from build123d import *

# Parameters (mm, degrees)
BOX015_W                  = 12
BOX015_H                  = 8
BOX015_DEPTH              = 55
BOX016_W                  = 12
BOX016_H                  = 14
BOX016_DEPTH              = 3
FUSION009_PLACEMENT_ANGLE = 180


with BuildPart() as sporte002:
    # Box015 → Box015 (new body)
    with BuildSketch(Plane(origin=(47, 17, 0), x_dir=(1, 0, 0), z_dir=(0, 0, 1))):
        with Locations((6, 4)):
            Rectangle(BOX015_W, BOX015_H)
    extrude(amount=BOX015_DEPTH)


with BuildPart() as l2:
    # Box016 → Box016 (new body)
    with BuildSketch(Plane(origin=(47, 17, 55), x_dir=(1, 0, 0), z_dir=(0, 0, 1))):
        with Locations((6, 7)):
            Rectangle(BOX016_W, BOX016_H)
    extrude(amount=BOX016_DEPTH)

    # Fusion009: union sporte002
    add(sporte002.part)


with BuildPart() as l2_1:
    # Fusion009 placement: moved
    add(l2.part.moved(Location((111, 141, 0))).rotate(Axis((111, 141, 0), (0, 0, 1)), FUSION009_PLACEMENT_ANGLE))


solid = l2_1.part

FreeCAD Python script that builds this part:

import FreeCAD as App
import Part
import Sketcher
from FreeCAD import Vector


def add_polygon(sketch, points):
    """Adds a closed chain of lines whose ends are joined by coincident constraints."""
    first, n = sketch.GeometryCount, len(points)
    for a, b in zip(points, points[1:] + points[:1]):
        sketch.addGeometry(Part.LineSegment(App.Vector(*a, 0), App.Vector(*b, 0)), False)
    for i in range(n):
        sketch.addConstraint(Sketcher.Constraint("Coincident", first + i, 2, first + (i + 1) % n, 1))

doc = App.newDocument("Part")
body = doc.addObject("PartDesign::Body", "Body")

sketch1 = body.newObject("Sketcher::SketchObject", "Sketch")
sketch1.AttachmentSupport = (doc.getObject("XY_Plane"), [""])
sketch1.MapMode = "FlatFace"
add_polygon(sketch1, [(47, 25), (47, 17), (59, 17), (59, 25)])
sketch1.addConstraint([
    Sketcher.Constraint("Vertical", 0),
    Sketcher.Constraint("Horizontal", 1),
    Sketcher.Constraint("Vertical", 2),
    Sketcher.Constraint("Horizontal", 3),
    Sketcher.Constraint("DistanceX", 1, 1, 1, 2, 12.0),
    Sketcher.Constraint("DistanceY", 0, 2, 0, 1, 8.0),
    Sketcher.Constraint("DistanceX", -1, 1, 0, 2, 47.0),
    Sketcher.Constraint("DistanceY", -1, 1, 0, 2, 17.0),
])
pad1 = body.newObject("PartDesign::Pad", "Pad")
pad1.Profile = sketch1
pad1.Length = 55
body2 = doc.addObject("PartDesign::Body", "Body001")

sketch2 = body2.newObject("Sketcher::SketchObject", "Sketch001")
sketch2.AttachmentSupport = (doc.getObject("XY_Plane001"), [""])
sketch2.MapMode = "FlatFace"
sketch2.AttachmentOffset = App.Placement(Vector(0, 0, 55), App.Rotation())
add_polygon(sketch2, [(47, 31), (47, 17), (59, 17), (59, 31)])
sketch2.addConstraint([
    Sketcher.Constraint("Vertical", 0),
    Sketcher.Constraint("Horizontal", 1),
    Sketcher.Constraint("Vertical", 2),
    Sketcher.Constraint("Horizontal", 3),
    Sketcher.Constraint("DistanceX", 1, 1, 1, 2, 12.0),
    Sketcher.Constraint("DistanceY", 0, 2, 0, 1, 14.0),
    Sketcher.Constraint("DistanceX", -1, 1, 0, 2, 47.0),
    Sketcher.Constraint("DistanceY", -1, 1, 0, 2, 17.0),
])
pad2 = body2.newObject("PartDesign::Pad", "Pad001")
pad2.Profile = sketch2
pad2.Length = 3
doc.recompute()

boolean = body2.newObject("PartDesign::Boolean", "Boolean")
boolean.Type = "Fuse"
boolean.addObjects([body])
body3 = doc.addObject("PartDesign::Body", "Body002")
doc.recompute()

body2.Placement = App.Placement(Vector(111, 141, 0), App.Rotation(Vector(0, 0, 1), 180))
boolean2 = body3.newObject("PartDesign::Boolean", "Boolean001")
boolean2.Type = "Fuse"
boolean2.addObjects([body2])

doc.recompute()
